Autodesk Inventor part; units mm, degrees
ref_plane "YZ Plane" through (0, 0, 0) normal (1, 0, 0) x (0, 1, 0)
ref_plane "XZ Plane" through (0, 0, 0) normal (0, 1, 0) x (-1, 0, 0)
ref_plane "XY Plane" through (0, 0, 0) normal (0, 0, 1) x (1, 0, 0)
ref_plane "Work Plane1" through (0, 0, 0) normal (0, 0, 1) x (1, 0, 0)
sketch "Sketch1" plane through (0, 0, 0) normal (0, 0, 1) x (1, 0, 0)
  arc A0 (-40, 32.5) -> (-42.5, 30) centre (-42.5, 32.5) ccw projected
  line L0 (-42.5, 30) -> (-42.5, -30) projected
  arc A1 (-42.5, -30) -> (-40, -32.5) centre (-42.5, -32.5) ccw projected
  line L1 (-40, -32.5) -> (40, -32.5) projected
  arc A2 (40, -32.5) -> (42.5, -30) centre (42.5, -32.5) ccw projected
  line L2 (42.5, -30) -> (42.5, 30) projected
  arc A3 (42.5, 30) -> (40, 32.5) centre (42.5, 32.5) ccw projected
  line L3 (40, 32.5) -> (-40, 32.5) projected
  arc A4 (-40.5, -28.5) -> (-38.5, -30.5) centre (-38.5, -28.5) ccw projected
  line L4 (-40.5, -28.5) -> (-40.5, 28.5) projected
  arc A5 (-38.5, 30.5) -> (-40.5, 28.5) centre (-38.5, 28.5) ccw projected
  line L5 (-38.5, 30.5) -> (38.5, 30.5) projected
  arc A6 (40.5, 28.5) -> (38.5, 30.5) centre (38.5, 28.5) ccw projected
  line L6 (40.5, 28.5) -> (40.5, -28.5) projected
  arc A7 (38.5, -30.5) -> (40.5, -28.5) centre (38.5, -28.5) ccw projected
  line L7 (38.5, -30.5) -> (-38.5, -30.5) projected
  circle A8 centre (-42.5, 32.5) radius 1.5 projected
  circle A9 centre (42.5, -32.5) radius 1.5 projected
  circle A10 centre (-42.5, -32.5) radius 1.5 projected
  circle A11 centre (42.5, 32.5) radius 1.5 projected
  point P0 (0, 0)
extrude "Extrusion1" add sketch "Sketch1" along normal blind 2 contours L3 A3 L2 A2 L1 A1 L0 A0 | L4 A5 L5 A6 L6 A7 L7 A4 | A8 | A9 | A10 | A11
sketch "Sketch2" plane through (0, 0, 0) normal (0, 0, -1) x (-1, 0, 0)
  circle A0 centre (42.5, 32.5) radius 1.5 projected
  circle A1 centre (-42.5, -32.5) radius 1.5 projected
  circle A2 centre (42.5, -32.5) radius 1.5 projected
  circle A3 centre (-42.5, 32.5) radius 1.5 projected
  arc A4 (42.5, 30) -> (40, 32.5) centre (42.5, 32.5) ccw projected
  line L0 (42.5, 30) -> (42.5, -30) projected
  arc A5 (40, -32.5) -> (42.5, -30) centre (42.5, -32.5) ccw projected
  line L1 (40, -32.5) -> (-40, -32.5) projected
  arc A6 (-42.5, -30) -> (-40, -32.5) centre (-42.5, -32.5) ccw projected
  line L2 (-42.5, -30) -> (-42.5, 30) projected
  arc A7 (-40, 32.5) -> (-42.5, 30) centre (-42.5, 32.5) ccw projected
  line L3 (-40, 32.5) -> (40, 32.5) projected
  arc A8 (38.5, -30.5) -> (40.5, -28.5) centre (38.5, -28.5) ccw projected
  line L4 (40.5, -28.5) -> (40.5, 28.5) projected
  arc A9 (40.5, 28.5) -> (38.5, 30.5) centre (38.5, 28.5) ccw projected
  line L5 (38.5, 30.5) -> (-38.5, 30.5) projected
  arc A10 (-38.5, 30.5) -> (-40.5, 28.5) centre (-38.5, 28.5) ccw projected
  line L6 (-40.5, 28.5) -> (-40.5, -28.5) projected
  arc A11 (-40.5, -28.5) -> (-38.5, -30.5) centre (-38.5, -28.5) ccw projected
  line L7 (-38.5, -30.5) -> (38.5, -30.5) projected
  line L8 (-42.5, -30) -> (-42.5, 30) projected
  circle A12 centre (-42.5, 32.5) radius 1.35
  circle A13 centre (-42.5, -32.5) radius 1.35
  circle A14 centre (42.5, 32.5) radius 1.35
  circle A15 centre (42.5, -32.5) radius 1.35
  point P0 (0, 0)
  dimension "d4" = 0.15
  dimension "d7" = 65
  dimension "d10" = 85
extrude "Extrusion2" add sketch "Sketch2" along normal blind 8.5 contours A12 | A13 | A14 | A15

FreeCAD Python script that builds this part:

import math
import FreeCAD as App
import Part
import Sketcher

doc = App.newDocument("Part")
body = doc.addObject("PartDesign::Body", "Body")

# Sketch on XY plane
sketch1 = body.newObject("Sketcher::SketchObject", "Sketch")
sketch1.AttachmentSupport = (doc.getObject("XY_Plane"), [""])
sketch1.MapMode = "FlatFace"
sketch1.addGeometry([
    Part.LineSegment(App.Vector(40, 32.5, 0), App.Vector(-40, 32.5, 0)),  # 0
    Part.ArcOfCircle(Part.Circle(App.Vector(-42.5, 32.5, 0), App.Vector(0, 0, 1), 2.5), math.radians(0), math.radians(270)),  # 1
    Part.LineSegment(App.Vector(-42.5, 30, 0), App.Vector(-42.5, -30, 0)),  # 2
    Part.ArcOfCircle(Part.Circle(App.Vector(-42.5, -32.5, 0), App.Vector(0, 0, 1), 2.5), math.radians(90), math.radians(360)),  # 3
    Part.LineSegment(App.Vector(-40, -32.5, 0), App.Vector(40, -32.5, 0)),  # 4
    Part.ArcOfCircle(Part.Circle(App.Vector(42.5, -32.5, 0), App.Vector(0, 0, 1), 2.5), math.radians(180), math.radians(450)),  # 5
    Part.LineSegment(App.Vector(42.5, -30, 0), App.Vector(42.5, 30, 0)),  # 6
    Part.ArcOfCircle(Part.Circle(App.Vector(42.5, 32.5, 0), App.Vector(0, 0, 1), 2.5), math.radians(-90), math.radians(180)),  # 7
], False)
sketch1.addConstraint([
    Sketcher.Constraint("Coincident", 0, 2, 1, 1),
    Sketcher.Constraint("Coincident", 1, 2, 2, 1),
    Sketcher.Constraint("Coincident", 2, 2, 3, 1),
    Sketcher.Constraint("Coincident", 3, 2, 4, 1),
    Sketcher.Constraint("Coincident", 4, 2, 5, 1),
    Sketcher.Constraint("Coincident", 5, 2, 6, 1),
    Sketcher.Constraint("Coincident", 6, 2, 7, 1),
    Sketcher.Constraint("Coincident", 7, 2, 0, 1),
    Sketcher.Constraint("Horizontal", 0),
    Sketcher.Constraint("Vertical", 2),
    Sketcher.Constraint("Horizontal", 4),
    Sketcher.Constraint("Vertical", 6),
    Sketcher.Constraint("Equal", 1, 3),
    Sketcher.Constraint("Equal", 3, 5),
    Sketcher.Constraint("Equal", 5, 7),
    Sketcher.Constraint("Symmetric", 1, 3, 5, 3, -1, 1),
    Sketcher.Constraint("Symmetric", 3, 3, 7, 3, -1, 1),
    Sketcher.Constraint("Symmetric", 3, 3, 5, 3, -2),
    Sketcher.Constraint("Horizontal", 7, 3, 0, 2),
    Sketcher.Constraint("Horizontal", 5, 3, 3, 2),
    Sketcher.Constraint("Vertical", 3, 3, 1, 2),
    Sketcher.Constraint("Vertical", 7, 3, 5, 2),
    Sketcher.Constraint("Radius", 1, 2.5),
    Sketcher.Constraint("DistanceX", 0, 2, 0, 1, 80.0),
    Sketcher.Constraint("DistanceY", 2, 2, 2, 1, 60.0),
])
pad1 = body.newObject("PartDesign::Pad", "Pad")
pad1.Profile = sketch1
pad1.Length = 2

# Sketch on XY plane
sketch2 = body.newObject("Sketcher::SketchObject", "Sketch001")
sketch2.AttachmentSupport = (doc.getObject("XY_Plane"), [""])
sketch2.MapMode = "FlatFace"
sketch2.addGeometry([
    Part.Circle(App.Vector(42.5, 32.5, 0), App.Vector(0, 0, 1), 1.4),
    Part.Circle(App.Vector(42.5, -32.5, 0), App.Vector(0, 0, 1), 1.4),
    Part.Circle(App.Vector(-42.5, 32.5, 0), App.Vector(0, 0, 1), 1.4),
    Part.Circle(App.Vector(-42.5, -32.5, 0), App.Vector(0, 0, 1), 1.4),
], False)
sketch2.addConstraint([
    Sketcher.Constraint("Equal", 0, 1),
    Sketcher.Constraint("Equal", 1, 2),
    Sketcher.Constraint("Equal", 2, 3),
    Sketcher.Constraint("Symmetric", 1, 3, 2, 3, -1, 1),
    Sketcher.Constraint("Symmetric", 0, 3, 3, 3, -1, 1),
    Sketcher.Constraint("Symmetric", 0, 3, 2, 3, -2),
    Sketcher.Constraint("DistanceY", 1, 3, 0, 3, 65.0),
    Sketcher.Constraint("DistanceX", 2, 3, 0, 3, 85.0),
    Sketcher.Constraint("Diameter", 0, 2.7),
])
pad2 = body.newObject("PartDesign::Pad", "Pad001")
pad2.Profile = sketch2
pad2.Length = 8.5
pad2.Reversed = True

doc.recompute()
